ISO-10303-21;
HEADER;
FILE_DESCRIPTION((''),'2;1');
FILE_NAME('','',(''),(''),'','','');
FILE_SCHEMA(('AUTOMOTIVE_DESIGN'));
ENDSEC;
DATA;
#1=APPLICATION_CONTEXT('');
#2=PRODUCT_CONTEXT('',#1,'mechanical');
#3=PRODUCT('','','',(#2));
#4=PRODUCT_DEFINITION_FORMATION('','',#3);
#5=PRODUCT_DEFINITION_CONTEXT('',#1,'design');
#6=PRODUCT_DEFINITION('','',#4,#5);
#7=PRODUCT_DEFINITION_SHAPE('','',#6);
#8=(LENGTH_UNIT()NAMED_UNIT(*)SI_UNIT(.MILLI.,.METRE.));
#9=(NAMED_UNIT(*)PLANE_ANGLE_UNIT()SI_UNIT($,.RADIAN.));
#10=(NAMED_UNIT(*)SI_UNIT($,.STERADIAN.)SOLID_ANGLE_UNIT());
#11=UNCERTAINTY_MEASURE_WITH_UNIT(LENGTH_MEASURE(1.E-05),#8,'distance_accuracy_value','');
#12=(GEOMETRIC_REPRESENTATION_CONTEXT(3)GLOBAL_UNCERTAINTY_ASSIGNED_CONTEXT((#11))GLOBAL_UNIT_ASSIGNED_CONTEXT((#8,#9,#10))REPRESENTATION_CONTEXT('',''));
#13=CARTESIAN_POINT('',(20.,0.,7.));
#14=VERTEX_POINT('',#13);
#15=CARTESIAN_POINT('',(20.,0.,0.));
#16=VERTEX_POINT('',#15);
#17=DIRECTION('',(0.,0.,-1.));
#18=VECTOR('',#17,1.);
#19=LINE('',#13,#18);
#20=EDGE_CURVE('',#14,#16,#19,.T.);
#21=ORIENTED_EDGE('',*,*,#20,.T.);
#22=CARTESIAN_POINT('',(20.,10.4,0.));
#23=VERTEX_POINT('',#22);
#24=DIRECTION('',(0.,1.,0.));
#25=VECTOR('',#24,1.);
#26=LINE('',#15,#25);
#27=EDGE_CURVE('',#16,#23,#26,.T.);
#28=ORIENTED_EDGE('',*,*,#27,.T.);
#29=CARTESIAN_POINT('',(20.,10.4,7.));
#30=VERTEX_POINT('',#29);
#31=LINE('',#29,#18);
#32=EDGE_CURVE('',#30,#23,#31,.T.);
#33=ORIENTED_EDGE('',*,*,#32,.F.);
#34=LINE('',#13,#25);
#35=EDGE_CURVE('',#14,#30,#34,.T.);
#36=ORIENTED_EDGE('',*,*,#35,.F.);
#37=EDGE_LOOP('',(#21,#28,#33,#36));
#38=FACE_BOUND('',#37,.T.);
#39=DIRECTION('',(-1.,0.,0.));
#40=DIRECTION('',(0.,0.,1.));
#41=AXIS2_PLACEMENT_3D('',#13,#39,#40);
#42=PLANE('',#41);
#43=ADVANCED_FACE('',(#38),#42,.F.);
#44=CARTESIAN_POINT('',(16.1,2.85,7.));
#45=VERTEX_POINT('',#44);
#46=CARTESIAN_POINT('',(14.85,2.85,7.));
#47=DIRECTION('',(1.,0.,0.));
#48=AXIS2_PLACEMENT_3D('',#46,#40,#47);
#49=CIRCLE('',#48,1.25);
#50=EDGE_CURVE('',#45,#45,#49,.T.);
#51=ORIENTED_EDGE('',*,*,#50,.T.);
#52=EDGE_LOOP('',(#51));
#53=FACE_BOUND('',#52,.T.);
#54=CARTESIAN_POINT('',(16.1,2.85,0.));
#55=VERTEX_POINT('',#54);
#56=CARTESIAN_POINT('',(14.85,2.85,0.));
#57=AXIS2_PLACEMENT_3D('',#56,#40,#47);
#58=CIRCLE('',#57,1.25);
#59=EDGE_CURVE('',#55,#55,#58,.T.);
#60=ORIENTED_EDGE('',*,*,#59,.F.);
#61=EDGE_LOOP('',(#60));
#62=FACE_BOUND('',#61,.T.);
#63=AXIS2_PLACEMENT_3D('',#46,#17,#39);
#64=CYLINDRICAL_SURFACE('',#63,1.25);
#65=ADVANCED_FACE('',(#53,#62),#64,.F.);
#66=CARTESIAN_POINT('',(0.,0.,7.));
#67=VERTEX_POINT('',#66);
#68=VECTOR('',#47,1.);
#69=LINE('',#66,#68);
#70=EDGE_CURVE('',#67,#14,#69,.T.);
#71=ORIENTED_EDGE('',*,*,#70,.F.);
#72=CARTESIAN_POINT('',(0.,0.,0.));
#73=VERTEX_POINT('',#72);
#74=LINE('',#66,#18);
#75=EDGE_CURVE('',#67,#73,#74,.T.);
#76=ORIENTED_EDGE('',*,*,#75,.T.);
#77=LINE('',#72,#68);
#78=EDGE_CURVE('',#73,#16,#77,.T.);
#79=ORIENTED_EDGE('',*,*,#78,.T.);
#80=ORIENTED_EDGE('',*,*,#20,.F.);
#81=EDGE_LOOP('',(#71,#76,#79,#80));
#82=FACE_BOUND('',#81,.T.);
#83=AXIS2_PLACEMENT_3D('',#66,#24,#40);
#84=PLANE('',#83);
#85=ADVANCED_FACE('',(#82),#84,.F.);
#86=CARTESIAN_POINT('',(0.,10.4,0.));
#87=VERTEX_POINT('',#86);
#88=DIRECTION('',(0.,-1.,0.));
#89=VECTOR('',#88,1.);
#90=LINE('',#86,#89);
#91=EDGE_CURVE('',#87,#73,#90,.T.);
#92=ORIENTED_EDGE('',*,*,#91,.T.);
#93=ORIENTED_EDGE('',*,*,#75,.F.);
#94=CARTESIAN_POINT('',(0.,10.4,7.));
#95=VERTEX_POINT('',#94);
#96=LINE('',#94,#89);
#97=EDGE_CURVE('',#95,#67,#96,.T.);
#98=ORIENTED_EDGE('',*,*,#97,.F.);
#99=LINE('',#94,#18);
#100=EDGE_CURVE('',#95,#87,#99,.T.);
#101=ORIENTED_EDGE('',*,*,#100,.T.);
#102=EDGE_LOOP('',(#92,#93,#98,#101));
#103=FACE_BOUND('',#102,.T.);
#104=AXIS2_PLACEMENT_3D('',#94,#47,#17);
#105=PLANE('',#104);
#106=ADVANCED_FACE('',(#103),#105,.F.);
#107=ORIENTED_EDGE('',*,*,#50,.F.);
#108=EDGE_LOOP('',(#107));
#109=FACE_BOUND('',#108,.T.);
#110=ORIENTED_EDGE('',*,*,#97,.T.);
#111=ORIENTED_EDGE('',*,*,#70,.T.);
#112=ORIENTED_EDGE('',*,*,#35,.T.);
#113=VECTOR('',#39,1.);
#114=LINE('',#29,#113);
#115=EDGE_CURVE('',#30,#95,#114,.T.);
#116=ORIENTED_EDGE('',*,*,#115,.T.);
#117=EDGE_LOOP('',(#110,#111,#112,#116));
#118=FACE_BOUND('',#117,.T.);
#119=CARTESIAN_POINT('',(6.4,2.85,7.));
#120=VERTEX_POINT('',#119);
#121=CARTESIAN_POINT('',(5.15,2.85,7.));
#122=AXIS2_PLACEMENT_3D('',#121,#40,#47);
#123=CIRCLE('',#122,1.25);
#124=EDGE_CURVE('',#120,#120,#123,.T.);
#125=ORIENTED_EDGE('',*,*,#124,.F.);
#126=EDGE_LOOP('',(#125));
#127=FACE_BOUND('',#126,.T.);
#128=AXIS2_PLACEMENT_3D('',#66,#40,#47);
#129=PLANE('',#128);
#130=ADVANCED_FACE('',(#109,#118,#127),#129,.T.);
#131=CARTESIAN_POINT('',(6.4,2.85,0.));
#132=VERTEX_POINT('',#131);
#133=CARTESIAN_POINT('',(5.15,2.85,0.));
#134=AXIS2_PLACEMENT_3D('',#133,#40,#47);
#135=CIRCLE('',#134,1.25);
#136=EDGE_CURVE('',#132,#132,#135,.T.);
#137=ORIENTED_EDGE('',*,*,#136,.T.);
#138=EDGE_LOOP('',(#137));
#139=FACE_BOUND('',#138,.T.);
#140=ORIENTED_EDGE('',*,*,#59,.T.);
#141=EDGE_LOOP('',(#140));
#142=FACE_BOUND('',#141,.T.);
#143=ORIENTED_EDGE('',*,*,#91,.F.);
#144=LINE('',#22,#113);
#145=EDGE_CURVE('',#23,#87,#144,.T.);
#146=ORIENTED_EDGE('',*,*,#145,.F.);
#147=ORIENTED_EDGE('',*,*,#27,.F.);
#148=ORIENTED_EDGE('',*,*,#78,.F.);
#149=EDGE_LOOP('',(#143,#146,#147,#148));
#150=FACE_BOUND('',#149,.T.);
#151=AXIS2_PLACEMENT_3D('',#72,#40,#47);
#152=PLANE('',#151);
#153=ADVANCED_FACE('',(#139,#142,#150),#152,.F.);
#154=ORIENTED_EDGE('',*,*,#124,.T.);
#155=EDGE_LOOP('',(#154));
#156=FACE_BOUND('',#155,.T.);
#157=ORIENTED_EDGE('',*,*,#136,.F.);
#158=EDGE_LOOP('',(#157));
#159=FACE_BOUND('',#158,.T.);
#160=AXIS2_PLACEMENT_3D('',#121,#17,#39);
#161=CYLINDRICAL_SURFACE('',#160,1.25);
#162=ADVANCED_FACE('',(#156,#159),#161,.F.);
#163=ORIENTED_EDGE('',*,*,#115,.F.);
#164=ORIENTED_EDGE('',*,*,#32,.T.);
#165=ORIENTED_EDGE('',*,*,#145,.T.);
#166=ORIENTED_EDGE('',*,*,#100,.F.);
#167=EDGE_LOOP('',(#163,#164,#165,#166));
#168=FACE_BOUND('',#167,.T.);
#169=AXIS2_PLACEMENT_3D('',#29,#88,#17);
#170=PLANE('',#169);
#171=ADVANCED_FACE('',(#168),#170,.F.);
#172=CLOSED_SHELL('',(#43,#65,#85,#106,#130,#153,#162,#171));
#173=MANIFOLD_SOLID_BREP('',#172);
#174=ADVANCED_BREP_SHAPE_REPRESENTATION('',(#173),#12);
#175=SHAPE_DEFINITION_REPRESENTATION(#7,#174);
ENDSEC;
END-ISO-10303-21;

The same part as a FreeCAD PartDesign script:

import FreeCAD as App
import Part
import Sketcher
from FreeCAD import Vector


def add_polygon(sketch, points):
    """Adds a closed chain of lines whose ends are joined by coincident constraints."""
    first, n = sketch.GeometryCount, len(points)
    for a, b in zip(points, points[1:] + points[:1]):
        sketch.addGeometry(Part.LineSegment(App.Vector(*a, 0), App.Vector(*b, 0)), False)
    for i in range(n):
        sketch.addConstraint(Sketcher.Constraint("Coincident", first + i, 2, first + (i + 1) % n, 1))

doc = App.newDocument("Part")
body = doc.addObject("PartDesign::Body", "Body")

# Sketch on XY plane
sketch1 = doc.addObject("Sketcher::SketchObject", "Sketch")
body.addObject(sketch1)
sketch1.AttachmentSupport = (doc.XY_Plane, [""])
sketch1.MapMode = "FlatFace"
add_polygon(sketch1, [(0, 10.4), (0, 0), (20, 0), (20, 10.4)])  # lines 0-3
sketch1.addGeometry(Part.Circle(Vector(5.15, 2.85, 0), Vector(0, 0, 1), 1.25), False)  # 4
sketch1.addGeometry(Part.Circle(Vector(14.85, 2.85, 0), Vector(0, 0, 1), 1.25), False)  # 5
sketch1.addConstraint([
    Sketcher.Constraint("Vertical", 0),
    Sketcher.Constraint("Horizontal", 1),
    Sketcher.Constraint("Vertical", 2),
    Sketcher.Constraint("Horizontal", 3),
    Sketcher.Constraint("Coincident", 0, 2, -1, 1),
    Sketcher.Constraint("Equal", 4, 5),
    Sketcher.Constraint("Horizontal", 4, 3, 5, 3),
    Sketcher.Constraint("Diameter", 4, 2.5),
    Sketcher.Constraint("DistanceX", 1, 1, 1, 2, 20.0),
    Sketcher.Constraint("DistanceY", 0, 2, 0, 1, 10.4),
    Sketcher.Constraint("DistanceX", 4, 3, 5, 3, 9.7),
    Sketcher.Constraint("DistanceX", -1, 1, 4, 3, 5.15),
    Sketcher.Constraint("DistanceY", -1, 1, 4, 3, 2.85),
])
pad1 = doc.addObject("PartDesign::Pad", "Pad")
body.addObject(pad1)
pad1.Profile = sketch1
pad1.Length = 7

doc.recompute()
